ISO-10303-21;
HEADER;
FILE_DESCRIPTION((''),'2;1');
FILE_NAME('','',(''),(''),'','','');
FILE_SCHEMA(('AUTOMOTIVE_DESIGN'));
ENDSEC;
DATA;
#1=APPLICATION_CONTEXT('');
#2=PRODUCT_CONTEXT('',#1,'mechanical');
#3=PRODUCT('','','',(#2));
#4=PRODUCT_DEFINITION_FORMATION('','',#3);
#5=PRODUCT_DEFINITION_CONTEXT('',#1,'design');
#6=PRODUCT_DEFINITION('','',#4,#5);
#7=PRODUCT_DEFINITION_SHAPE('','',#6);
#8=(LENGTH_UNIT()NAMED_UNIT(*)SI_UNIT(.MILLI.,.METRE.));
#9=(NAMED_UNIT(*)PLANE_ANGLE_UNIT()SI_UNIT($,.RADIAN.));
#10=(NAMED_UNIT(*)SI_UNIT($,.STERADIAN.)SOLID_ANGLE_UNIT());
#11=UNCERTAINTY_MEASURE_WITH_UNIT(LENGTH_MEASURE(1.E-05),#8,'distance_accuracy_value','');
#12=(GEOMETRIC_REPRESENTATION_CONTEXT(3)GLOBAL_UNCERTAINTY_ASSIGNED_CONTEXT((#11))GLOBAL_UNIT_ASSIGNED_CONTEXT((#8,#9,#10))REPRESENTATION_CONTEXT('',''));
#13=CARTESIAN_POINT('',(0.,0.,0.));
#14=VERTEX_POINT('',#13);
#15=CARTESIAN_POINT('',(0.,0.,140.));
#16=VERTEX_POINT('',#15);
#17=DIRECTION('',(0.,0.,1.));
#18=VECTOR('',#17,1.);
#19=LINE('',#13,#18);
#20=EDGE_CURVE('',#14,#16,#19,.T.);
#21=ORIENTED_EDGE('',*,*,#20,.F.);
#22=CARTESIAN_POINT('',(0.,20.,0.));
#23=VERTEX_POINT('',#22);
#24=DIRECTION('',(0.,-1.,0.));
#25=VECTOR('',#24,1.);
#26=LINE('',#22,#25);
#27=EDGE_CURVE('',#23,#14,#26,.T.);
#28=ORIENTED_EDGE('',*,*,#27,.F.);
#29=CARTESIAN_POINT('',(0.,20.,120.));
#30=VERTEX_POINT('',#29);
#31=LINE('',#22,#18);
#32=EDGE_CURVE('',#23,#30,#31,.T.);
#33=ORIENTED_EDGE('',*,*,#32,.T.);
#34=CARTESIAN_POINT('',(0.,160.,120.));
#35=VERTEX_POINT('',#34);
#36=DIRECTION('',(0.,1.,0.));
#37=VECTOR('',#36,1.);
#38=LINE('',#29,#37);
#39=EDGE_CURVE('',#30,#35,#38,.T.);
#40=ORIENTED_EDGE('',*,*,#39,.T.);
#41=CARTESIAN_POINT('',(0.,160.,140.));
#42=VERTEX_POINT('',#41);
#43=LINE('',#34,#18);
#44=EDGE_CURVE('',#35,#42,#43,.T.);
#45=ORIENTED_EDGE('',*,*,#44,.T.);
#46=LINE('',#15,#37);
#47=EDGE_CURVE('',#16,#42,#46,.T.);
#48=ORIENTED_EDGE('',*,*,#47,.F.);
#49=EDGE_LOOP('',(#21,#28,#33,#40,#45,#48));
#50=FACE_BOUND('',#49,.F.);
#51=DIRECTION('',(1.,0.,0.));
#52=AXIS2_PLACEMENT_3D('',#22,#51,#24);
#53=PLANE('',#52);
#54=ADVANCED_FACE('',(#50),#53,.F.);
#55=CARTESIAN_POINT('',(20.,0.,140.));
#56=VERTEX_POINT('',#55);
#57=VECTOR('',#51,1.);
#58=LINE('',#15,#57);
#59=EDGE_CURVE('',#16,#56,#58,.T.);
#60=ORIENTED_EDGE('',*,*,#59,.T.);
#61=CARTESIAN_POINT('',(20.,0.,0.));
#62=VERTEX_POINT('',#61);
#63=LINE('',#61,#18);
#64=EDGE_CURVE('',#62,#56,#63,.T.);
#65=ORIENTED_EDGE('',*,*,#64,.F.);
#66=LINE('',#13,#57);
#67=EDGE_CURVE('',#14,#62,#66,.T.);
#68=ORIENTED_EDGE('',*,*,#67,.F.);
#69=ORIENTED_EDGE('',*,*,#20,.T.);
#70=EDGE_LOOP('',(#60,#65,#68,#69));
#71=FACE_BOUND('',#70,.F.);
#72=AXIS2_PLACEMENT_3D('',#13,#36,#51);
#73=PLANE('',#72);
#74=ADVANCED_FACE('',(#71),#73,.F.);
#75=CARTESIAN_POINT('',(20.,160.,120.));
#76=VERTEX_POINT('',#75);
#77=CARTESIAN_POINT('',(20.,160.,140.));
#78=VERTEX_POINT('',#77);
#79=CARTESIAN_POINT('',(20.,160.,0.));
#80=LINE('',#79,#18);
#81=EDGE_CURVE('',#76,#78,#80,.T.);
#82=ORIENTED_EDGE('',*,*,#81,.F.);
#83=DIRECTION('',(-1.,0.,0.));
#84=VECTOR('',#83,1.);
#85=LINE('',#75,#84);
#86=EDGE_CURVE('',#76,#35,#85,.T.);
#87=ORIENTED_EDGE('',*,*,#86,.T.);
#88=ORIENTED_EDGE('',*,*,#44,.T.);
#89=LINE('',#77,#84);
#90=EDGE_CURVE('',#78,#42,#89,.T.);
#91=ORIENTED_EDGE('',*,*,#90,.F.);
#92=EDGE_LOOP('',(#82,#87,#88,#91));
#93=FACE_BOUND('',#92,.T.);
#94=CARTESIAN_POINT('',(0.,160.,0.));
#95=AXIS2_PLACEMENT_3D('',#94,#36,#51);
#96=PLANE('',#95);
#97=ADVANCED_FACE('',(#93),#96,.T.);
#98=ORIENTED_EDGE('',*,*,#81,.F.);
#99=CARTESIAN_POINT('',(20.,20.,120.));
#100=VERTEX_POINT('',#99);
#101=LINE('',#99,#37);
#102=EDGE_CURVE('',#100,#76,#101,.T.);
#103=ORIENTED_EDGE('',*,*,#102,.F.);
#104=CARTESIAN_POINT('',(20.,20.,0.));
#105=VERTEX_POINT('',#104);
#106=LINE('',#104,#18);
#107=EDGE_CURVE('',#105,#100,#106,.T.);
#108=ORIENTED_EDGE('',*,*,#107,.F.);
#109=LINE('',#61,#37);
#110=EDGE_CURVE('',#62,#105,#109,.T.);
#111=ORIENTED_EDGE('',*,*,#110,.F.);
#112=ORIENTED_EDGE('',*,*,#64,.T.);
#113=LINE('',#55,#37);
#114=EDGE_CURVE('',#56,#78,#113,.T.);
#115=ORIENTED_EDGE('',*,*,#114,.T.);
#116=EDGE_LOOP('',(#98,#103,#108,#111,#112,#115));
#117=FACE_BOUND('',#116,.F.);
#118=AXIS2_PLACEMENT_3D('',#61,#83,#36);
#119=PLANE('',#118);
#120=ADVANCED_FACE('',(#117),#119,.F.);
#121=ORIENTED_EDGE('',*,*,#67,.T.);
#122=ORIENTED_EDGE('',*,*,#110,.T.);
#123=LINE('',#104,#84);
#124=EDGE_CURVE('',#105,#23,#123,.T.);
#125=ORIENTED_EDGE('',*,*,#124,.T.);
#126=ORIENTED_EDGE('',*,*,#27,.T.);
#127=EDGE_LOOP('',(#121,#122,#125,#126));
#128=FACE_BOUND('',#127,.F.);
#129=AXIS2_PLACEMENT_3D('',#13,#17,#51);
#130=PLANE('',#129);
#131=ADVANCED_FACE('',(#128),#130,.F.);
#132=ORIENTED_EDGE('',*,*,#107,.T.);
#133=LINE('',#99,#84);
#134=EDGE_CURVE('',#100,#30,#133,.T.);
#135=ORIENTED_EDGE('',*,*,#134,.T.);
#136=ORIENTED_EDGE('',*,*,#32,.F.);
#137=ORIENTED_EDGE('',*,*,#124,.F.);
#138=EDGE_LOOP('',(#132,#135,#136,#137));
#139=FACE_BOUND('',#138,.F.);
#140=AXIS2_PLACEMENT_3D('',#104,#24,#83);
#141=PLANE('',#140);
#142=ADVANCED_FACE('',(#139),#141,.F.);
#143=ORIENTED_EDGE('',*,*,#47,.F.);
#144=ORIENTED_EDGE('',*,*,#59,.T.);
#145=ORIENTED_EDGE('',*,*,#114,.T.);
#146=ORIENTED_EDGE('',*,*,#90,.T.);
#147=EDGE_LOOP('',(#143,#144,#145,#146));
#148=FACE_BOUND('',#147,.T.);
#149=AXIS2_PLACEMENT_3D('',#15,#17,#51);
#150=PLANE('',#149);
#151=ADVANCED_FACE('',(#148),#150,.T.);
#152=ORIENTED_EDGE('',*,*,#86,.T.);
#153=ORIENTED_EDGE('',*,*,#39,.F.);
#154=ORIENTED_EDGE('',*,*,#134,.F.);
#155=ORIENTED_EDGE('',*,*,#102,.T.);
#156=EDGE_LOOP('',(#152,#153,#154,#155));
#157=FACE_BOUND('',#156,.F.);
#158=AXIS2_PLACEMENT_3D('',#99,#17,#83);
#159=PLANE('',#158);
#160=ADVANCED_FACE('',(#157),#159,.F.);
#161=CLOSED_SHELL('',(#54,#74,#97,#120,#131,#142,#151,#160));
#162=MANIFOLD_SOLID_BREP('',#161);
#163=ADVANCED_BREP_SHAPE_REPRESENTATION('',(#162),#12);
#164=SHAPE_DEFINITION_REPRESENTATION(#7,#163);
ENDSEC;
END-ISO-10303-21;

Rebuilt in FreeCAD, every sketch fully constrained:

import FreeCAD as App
import Part
import Sketcher
from FreeCAD import Vector


def add_polygon(sketch, points):
    """Adds a closed chain of lines whose ends are joined by coincident constraints."""
    first, n = sketch.GeometryCount, len(points)
    for a, b in zip(points, points[1:] + points[:1]):
        sketch.addGeometry(Part.LineSegment(App.Vector(*a, 0), App.Vector(*b, 0)), False)
    for i in range(n):
        sketch.addConstraint(Sketcher.Constraint("Coincident", first + i, 2, first + (i + 1) % n, 1))

doc = App.newDocument("Part")
body = doc.addObject("PartDesign::Body", "Body")

sketch1 = body.newObject("Sketcher::SketchObject", "Sketch")
sketch1.AttachmentSupport = (doc.getObject("XY_Plane"), [""])
sketch1.MapMode = "FlatFace"
add_polygon(sketch1, [(0, 20), (0, 0), (20, 0), (20, 20)])
sketch1.addConstraint([
    Sketcher.Constraint("Vertical", 0),
    Sketcher.Constraint("Horizontal", 1),
    Sketcher.Constraint("Vertical", 2),
    Sketcher.Constraint("Horizontal", 3),
    Sketcher.Constraint("Coincident", 0, 2, -1, 1),
    Sketcher.Constraint("Equal", 3, 0),
    Sketcher.Constraint("DistanceX", 1, 1, 1, 2, 20.0),
])
pad1 = body.newObject("PartDesign::Pad", "Pad")
pad1.Profile = sketch1
pad1.Length = 140

sketch2 = body.newObject("Sketcher::SketchObject", "Sketch001")
sketch2.AttachmentSupport = (doc.getObject("XZ_Plane"), [""])
sketch2.MapMode = "FlatFace"
sketch2.AttachmentOffset = App.Placement(Vector(0, 0, -20), App.Rotation())
add_polygon(sketch2, [(0, 140), (20, 140), (20, 120), (0, 120)])
sketch2.addConstraint([
    Sketcher.Constraint("Horizontal", 0),
    Sketcher.Constraint("Vertical", 1),
    Sketcher.Constraint("Horizontal", 2),
    Sketcher.Constraint("Vertical", 3),
    Sketcher.Constraint("PointOnObject", 2, 2, -2),
    Sketcher.Constraint("Equal", 2, 1),
    Sketcher.Constraint("DistanceX", 0, 1, 0, 2, 20.0),
    Sketcher.Constraint("DistanceY", -1, 1, 0, 2, 140.0),
])
pad2 = body.newObject("PartDesign::Pad", "Pad001")
pad2.Profile = sketch2
pad2.Length = 140
pad2.Reversed = True

doc.recompute()
